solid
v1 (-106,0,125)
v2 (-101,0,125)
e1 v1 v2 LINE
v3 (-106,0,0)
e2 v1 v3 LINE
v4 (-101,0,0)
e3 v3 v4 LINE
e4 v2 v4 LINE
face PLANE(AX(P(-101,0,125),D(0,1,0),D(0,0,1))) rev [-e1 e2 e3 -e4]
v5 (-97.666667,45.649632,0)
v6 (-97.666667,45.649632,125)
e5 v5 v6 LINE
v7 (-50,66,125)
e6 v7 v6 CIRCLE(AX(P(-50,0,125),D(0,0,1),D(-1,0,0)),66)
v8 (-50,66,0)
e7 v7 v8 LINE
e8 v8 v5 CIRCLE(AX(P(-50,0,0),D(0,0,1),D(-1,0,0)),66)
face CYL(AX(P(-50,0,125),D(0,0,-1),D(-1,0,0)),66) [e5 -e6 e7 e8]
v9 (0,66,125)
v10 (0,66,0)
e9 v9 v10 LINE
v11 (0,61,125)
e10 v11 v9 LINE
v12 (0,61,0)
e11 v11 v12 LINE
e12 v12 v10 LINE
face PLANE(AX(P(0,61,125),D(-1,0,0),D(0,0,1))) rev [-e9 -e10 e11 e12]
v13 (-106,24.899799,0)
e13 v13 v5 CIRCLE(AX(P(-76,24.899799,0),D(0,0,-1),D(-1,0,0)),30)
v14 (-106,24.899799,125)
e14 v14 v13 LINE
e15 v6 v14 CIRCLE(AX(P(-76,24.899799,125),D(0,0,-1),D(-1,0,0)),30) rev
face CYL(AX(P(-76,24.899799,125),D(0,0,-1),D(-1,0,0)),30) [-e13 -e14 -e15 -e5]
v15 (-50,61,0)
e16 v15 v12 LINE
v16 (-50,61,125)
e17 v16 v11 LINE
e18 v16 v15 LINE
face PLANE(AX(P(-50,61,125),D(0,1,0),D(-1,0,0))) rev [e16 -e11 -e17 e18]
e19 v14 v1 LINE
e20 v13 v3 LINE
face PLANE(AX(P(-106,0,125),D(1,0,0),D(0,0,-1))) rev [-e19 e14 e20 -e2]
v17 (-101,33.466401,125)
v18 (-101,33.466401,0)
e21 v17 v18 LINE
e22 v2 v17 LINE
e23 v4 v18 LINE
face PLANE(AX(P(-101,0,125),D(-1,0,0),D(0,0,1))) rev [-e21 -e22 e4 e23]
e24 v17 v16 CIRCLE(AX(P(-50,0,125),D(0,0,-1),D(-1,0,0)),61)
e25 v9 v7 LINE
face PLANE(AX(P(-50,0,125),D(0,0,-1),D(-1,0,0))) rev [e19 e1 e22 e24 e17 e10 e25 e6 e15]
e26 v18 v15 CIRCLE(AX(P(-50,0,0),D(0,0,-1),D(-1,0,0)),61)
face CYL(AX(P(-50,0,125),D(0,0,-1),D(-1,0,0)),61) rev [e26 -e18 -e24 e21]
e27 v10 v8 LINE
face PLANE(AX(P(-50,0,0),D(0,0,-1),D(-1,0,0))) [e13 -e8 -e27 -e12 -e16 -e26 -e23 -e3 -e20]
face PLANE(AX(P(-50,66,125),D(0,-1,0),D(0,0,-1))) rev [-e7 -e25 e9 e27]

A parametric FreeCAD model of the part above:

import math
import FreeCAD as App
import Part
import Sketcher
Q = App.Units.Quantity


def edges_at(feature, points):
    """Names of the edges that pass closest to the given points."""
    edges = feature.Shape.Edges
    near = lambda p: min(range(len(edges)), key=lambda i: edges[i].distToShape(Part.Vertex(*p))[0])
    return sorted({f"Edge{near(p) + 1}" for p in points})

doc = App.newDocument("Part")
body = doc.addObject("PartDesign::Body", "Body")

# Sketch on XY plane
sketch1 = body.newObject("Sketcher::SketchObject", "Sketch")
sketch1.AttachmentSupport = (doc.getObject("XY_Plane"), [""])
sketch1.MapMode = "FlatFace"
sketch1.addGeometry(Part.LineSegment(App.Vector(-101, 0, 0), App.Vector(-101, 33, 0)), False)
sketch1.addGeometry(Part.ArcOfCircle(Part.Circle(App.Vector(-50, 0, 0), App.Vector(0, 0, 1), 61), math.radians(90), math.radians(147)), False)
sketch1.addGeometry(Part.LineSegment(App.Vector(-50, 61, 0), App.Vector(0, 61, 0)), False)
sketch1.addGeometry(Part.LineSegment(App.Vector(0, 61, 0), App.Vector(0, 66, 0)), False)
sketch1.addGeometry(Part.LineSegment(App.Vector(0, 66, 0), App.Vector(-50, 66, 0)), False)
sketch1.addGeometry(Part.ArcOfCircle(Part.Circle(App.Vector(-50, 0, 0), App.Vector(0, 0, 1), 66), math.radians(90), math.radians(148)), False)
sketch1.addGeometry(Part.LineSegment(App.Vector(-106, 35, 0), App.Vector(-106, 0, 0)), False)
sketch1.addGeometry(Part.LineSegment(App.Vector(-106, 0, 0), App.Vector(-101, 0, 0)), False)
sketch1.addConstraint(Sketcher.Constraint("Coincident", 0, 2, 1, 2))
sketch1.addConstraint(Sketcher.Constraint("Tangent", 1, 1, 2, 1))
sketch1.addConstraint(Sketcher.Constraint("Coincident", 2, 2, 3, 1))
sketch1.addConstraint(Sketcher.Constraint("Coincident", 3, 2, 4, 1))
sketch1.addConstraint(Sketcher.Constraint("Tangent", 4, 2, 5, 1))
sketch1.addConstraint(Sketcher.Constraint("Coincident", 5, 2, 6, 1))
sketch1.addConstraint(Sketcher.Constraint("Coincident", 6, 2, 7, 1))
sketch1.addConstraint(Sketcher.Constraint("Coincident", 7, 2, 0, 1))
sketch1.addConstraint(Sketcher.Constraint("Vertical", 0))
sketch1.addConstraint(Sketcher.Constraint("Horizontal", 2))
sketch1.addConstraint(Sketcher.Constraint("Vertical", 3))
sketch1.addConstraint(Sketcher.Constraint("Horizontal", 4))
sketch1.addConstraint(Sketcher.Constraint("Vertical", 6))
sketch1.addConstraint(Sketcher.Constraint("Horizontal", 7))
sketch1.addConstraint(Sketcher.Constraint("Coincident", 5, 3, 1, 3))
sketch1.addConstraint(Sketcher.Constraint("PointOnObject", 1, 3, -1))
sketch1.addConstraint(Sketcher.Constraint("PointOnObject", 2, 2, -2))
sketch1.addConstraint(Sketcher.Constraint("PointOnObject", 6, 2, -1))
sketch1.addConstraint(Sketcher.Constraint("Equal", 7, 3))
sketch1.addConstraint(Sketcher.Constraint("Radius", 1, Q("61 mm")))
sketch1.addConstraint(Sketcher.Constraint("Radius", 5, Q("66 mm")))
sketch1.addConstraint(Sketcher.Constraint("DistanceX", 2, 1, 2, 2, Q("50 mm")))
sketch1.addConstraint(Sketcher.Constraint("DistanceX", 0, 2, -1, 1, Q("101 mm")))
pad1 = body.newObject("PartDesign::Pad", "Pad")
pad1.Profile = sketch1
pad1.Length = 125
doc.recompute()

fillet = body.newObject("PartDesign::Fillet", "Fillet")
fillet.Base = (pad1, edges_at(pad1, [(-106, 34.928, 62.5)]))
fillet.Radius = 30

doc.recompute()
